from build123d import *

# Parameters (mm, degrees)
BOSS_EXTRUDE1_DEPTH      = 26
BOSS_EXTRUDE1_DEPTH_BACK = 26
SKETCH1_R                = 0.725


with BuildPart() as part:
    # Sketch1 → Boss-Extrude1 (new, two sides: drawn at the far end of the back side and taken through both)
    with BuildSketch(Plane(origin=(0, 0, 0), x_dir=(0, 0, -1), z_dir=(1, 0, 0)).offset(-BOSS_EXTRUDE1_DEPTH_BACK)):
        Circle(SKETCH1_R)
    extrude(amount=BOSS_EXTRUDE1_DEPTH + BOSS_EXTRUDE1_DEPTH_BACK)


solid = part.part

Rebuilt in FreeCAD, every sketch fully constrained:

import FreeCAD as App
import Part
import Sketcher
from FreeCAD import Vector

doc = App.newDocument("Part")
body = doc.addObject("PartDesign::Body", "Body")

# Sketch on YZ plane
sketch1 = body.newObject("Sketcher::SketchObject", "Sketch")
sketch1.AttachmentSupport = (doc.getObject("YZ_Plane"), [""])
sketch1.MapMode = "FlatFace"
sketch1.addGeometry(Part.Circle(Vector(0, 0, 0), Vector(0, 0, 1), 0.7), False)
sketch1.addConstraint([
    Sketcher.Constraint("Coincident", 0, 3, -1, 1),
    Sketcher.Constraint("Diameter", 0, 1.45),
])
pad1 = body.newObject("PartDesign::Pad", "Pad")
pad1.Profile = sketch1
pad1.Type = "TwoLengths"
pad1.Length = 26
pad1.Length2 = 26

doc.recompute()
